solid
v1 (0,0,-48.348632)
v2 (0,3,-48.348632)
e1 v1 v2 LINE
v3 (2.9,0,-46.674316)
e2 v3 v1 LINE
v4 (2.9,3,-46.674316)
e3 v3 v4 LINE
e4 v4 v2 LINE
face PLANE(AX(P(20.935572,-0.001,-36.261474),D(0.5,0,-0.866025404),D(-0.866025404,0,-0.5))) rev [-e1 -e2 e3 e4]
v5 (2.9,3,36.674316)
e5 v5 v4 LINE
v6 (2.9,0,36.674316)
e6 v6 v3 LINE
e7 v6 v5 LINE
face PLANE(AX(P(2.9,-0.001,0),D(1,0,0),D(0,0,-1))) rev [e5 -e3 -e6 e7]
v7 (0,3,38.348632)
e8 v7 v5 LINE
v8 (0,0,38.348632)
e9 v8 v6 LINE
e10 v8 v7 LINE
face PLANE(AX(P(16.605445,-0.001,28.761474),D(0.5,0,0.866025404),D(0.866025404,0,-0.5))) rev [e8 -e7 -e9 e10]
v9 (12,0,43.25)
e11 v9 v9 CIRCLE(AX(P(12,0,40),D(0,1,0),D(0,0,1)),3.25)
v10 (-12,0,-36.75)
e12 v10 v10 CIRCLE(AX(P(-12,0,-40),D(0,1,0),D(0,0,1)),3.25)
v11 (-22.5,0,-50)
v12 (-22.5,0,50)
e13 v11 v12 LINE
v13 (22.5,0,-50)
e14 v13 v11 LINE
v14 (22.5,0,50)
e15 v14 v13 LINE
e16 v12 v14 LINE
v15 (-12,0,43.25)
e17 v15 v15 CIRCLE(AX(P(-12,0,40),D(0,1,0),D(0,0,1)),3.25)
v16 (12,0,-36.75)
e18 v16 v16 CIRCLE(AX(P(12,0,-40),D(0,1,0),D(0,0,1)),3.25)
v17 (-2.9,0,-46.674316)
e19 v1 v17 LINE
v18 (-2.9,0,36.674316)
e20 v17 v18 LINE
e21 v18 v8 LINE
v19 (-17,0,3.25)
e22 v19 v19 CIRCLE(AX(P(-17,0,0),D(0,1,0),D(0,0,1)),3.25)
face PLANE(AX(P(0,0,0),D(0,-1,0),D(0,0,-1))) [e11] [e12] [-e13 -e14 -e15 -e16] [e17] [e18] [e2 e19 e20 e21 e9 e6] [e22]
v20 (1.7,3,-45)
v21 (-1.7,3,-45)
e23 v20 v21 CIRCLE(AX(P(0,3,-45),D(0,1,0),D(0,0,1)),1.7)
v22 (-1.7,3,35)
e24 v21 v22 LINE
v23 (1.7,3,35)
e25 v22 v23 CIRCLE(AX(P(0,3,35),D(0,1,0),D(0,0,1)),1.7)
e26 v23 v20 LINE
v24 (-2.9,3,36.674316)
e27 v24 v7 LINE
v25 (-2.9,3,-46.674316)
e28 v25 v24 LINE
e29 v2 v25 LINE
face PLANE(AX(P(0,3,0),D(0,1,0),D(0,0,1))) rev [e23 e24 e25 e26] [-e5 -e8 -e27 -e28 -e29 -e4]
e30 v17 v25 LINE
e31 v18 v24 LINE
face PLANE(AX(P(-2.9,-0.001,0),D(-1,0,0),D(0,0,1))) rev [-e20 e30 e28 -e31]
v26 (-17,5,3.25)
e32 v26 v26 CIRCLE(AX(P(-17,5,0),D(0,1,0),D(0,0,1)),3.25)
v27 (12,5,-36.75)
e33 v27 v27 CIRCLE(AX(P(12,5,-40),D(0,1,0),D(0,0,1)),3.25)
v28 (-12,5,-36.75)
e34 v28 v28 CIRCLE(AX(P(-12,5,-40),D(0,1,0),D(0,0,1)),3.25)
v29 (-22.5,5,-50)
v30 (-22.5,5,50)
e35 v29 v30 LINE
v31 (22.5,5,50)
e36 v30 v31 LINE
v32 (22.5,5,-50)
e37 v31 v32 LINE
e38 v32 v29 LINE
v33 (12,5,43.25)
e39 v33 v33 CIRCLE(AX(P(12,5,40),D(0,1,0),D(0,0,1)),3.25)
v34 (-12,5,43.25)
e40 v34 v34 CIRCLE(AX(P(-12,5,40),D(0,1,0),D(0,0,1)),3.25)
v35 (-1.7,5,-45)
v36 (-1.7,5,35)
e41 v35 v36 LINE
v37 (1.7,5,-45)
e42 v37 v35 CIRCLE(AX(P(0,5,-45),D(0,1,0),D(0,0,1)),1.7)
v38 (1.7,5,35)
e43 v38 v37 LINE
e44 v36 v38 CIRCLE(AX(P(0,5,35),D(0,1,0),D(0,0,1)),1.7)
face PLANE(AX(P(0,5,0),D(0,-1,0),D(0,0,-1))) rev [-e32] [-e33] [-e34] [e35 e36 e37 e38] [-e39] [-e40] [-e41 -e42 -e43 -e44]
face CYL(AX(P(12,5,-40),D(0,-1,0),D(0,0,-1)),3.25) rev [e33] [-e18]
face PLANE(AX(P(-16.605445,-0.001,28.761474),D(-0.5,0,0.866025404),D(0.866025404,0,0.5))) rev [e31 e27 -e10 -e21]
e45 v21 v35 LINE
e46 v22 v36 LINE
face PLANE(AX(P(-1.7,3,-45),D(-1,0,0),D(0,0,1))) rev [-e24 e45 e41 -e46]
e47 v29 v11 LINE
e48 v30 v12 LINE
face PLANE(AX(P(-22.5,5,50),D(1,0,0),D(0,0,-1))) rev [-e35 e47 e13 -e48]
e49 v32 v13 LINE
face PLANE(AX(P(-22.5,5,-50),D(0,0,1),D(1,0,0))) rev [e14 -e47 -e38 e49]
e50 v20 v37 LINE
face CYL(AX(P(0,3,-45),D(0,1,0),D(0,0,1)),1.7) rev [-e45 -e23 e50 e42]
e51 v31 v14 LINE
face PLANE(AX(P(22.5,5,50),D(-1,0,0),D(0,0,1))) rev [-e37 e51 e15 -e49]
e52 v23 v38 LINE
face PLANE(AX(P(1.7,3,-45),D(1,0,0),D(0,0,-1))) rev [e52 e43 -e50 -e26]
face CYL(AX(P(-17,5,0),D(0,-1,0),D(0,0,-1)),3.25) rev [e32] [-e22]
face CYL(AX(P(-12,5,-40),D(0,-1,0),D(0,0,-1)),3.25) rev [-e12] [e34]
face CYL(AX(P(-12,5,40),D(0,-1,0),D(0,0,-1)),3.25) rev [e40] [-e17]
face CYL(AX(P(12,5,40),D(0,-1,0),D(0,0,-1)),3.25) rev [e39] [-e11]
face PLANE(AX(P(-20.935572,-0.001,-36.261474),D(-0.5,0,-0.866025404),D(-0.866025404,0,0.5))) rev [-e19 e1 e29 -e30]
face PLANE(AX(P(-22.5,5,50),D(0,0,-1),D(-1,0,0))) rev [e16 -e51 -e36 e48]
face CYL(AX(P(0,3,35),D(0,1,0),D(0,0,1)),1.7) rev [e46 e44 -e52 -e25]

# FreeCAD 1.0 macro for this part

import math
import FreeCAD as App
import Part
import Sketcher
Q = App.Units.Quantity

doc = App.newDocument("Part")
body = doc.addObject("PartDesign::Body", "Body")

# Sketch on XZ plane
sketch1 = body.newObject("Sketcher::SketchObject", "Sketch")
sketch1.AttachmentSupport = (doc.getObject("XZ_Plane"), [""])
sketch1.MapMode = "FlatFace"
sketch1.addGeometry([
    Part.LineSegment(App.Vector(-22.5, -50, 0), App.Vector(-22.5, 50, 0)),  # 0
    Part.LineSegment(App.Vector(-22.5, 50, 0), App.Vector(22.5, 50, 0)),  # 1
    Part.LineSegment(App.Vector(22.5, 50, 0), App.Vector(22.5, -50, 0)),  # 2
    Part.LineSegment(App.Vector(22.5, -50, 0), App.Vector(-22.5, -50, 0)),  # 3
    Part.Circle(App.Vector(-12, 40, 0), App.Vector(0, 0, 1), 3.2),  # 4
    Part.Circle(App.Vector(12, 40, 0), App.Vector(0, 0, 1), 3.2),  # 5
    Part.Circle(App.Vector(-17, 0, 0), App.Vector(0, 0, 1), 3.2),  # 6
    Part.Circle(App.Vector(-12, -40, 0), App.Vector(0, 0, 1), 3.2),  # 7
    Part.Circle(App.Vector(12, -40, 0), App.Vector(0, 0, 1), 3.2),  # 8
], False)
sketch1.addConstraint([
    Sketcher.Constraint("Coincident", 0, 2, 1, 1),
    Sketcher.Constraint("Coincident", 1, 2, 2, 1),
    Sketcher.Constraint("Coincident", 2, 2, 3, 1),
    Sketcher.Constraint("Coincident", 3, 2, 0, 1),
    Sketcher.Constraint("Vertical", 0),
    Sketcher.Constraint("Horizontal", 1),
    Sketcher.Constraint("Vertical", 2),
    Sketcher.Constraint("Horizontal", 3),
    Sketcher.Constraint("Equal", 4, 5),
    Sketcher.Constraint("Equal", 5, 6),
    Sketcher.Constraint("Equal", 6, 7),
    Sketcher.Constraint("Equal", 7, 8),
    Sketcher.Constraint("Symmetric", 5, 3, 7, 3, -1, 1),
    Sketcher.Constraint("Symmetric", 4, 3, 8, 3, -1, 1),
    Sketcher.Constraint("Symmetric", 0, 2, 2, 2, -1, 1),
    Sketcher.Constraint("Symmetric", 4, 3, 5, 3, -2),
    Sketcher.Constraint("PointOnObject", 6, 3, -1),
    Sketcher.Constraint("Diameter", 4, 6.5),
    Sketcher.Constraint("DistanceX", 1, 1, 1, 2, 45.0),
    Sketcher.Constraint("DistanceY", 0, 1, 0, 2, 100.0),
    Sketcher.Constraint("DistanceX", 4, 3, -1, 1, 12.0),
    Sketcher.Constraint("DistanceY", -1, 1, 4, 3, 40.0),
    Sketcher.Constraint("DistanceX", 6, 3, -1, 1, 17.0),
])
pad1 = body.newObject("PartDesign::Pad", "Pad")
pad1.Profile = sketch1
pad1.Length = 5
pad1.Reversed = True

# Sketch on XZ plane
sketch2 = body.newObject("Sketcher::SketchObject", "Sketch001")
sketch2.AttachmentSupport = (doc.getObject("XZ_Plane"), [""])
sketch2.MapMode = "FlatFace"
sketch2.AttachmentOffset = App.Placement(App.Vector(0, 0, -5), App.Rotation())
sketch2.addGeometry([
    Part.LineSegment(App.Vector(1.7, 35, 0), App.Vector(1.7, -45, 0)),
    Part.ArcOfCircle(Part.Circle(App.Vector(0, -45, 0), App.Vector(0, 0, 1), 1.7), math.radians(180), math.radians(360)),
    Part.LineSegment(App.Vector(-1.7, -45, 0), App.Vector(-1.7, 35, 0)),
    Part.ArcOfCircle(Part.Circle(App.Vector(0, 35, 0), App.Vector(0, 0, 1), 1.7), math.radians(0), math.radians(180)),
], False)
sketch2.addConstraint([
    Sketcher.Constraint("Tangent", 0, 2, 1, 2),
    Sketcher.Constraint("Tangent", 1, 1, 2, 1),
    Sketcher.Constraint("Tangent", 2, 2, 3, 2),
    Sketcher.Constraint("Tangent", 3, 1, 0, 1),
    Sketcher.Constraint("Vertical", 0),
    Sketcher.Constraint("Vertical", 2),
    Sketcher.Constraint("PointOnObject", 1, 3, -2),
    Sketcher.Constraint("Radius", 1, 1.7),
    Sketcher.Constraint("DistanceY", 0, 2, 0, 1, 80.0),
    Sketcher.Constraint("DistanceY", 1, 3, -1, 1, 45.0),
])
pocket1 = body.newObject("PartDesign::Pocket", "Pocket")
pocket1.Profile = sketch2
pocket1.Length = 2
pocket1.Reversed = True

# Sketch on XZ plane
sketch3 = body.newObject("Sketcher::SketchObject", "Sketch002")
sketch3.AttachmentSupport = (doc.getObject("XZ_Plane"), [""])
sketch3.MapMode = "FlatFace"
sketch3.AttachmentOffset = App.Placement(App.Vector(0, 0, -3), App.Rotation())
sketch3.addGeometry([
    Part.LineSegment(App.Vector(0, -41.7, 0), App.Vector(1.7, -42.6, 0)),  # 0
    Part.LineSegment(App.Vector(1.7, -42.6, 0), App.Vector(1.7, -45, 0)),  # 1
    Part.ArcOfCircle(Part.Circle(App.Vector(0, -45, 0), App.Vector(0, 0, 1), 1.7), math.radians(180), math.radians(360)),  # 2
    Part.LineSegment(App.Vector(-1.7, -45, 0), App.Vector(-1.7, -42.6, 0)),  # 3
    Part.LineSegment(App.Vector(-1.7, -42.6, 0), App.Vector(0, -41.7, 0)),  # 4
], False)
sketch3.addConstraint([
    Sketcher.Constraint("Coincident", 0, 2, 1, 1),
    Sketcher.Constraint("Tangent", 1, 2, 2, 2),
    Sketcher.Constraint("Tangent", 2, 1, 3, 1),
    Sketcher.Constraint("Coincident", 3, 2, 4, 1),
    Sketcher.Constraint("Coincident", 4, 2, 0, 1),
    Sketcher.Constraint("Vertical", 1),
    Sketcher.Constraint("Vertical", 3),
    Sketcher.Constraint("Symmetric", 0, 2, 3, 2, -2),
    Sketcher.Constraint("PointOnObject", 4, 2, -2),
    Sketcher.Constraint("Radius", 2, 1.7),
    Sketcher.Constraint("Angle", 0, Q("-30 deg")),
    Sketcher.Constraint("DistanceY", 2, 3, -1, 1, 45.0),
    Sketcher.Constraint("DistanceY", 1, 2, 1, 1, 2.367136),
])
pocket2 = body.newObject("PartDesign::Pocket", "Pocket001")
pocket2.Profile = sketch3
pocket2.Type = "UpToFirst"
pocket2.Reversed = True

# Sketch on XZ plane
sketch4 = body.newObject("Sketcher::SketchObject", "Sketch003")
sketch4.AttachmentSupport = (doc.getObject("XZ_Plane"), [""])
sketch4.MapMode = "FlatFace"
sketch4.AttachmentOffset = App.Placement(App.Vector(0, 0, -3), App.Rotation())
sketch4.addGeometry([
    Part.LineSegment(App.Vector(1.7, 32.6, 0), App.Vector(1.7, -42.6, 0)),  # 0
    Part.LineSegment(App.Vector(1.7, -42.6, 0), App.Vector(0, -41.7, 0)),  # 1
    Part.LineSegment(App.Vector(0, -41.7, 0), App.Vector(-1.7, -42.6, 0)),  # 2
    Part.LineSegment(App.Vector(-1.7, -42.6, 0), App.Vector(-1.7, 32.6, 0)),  # 3
    Part.LineSegment(App.Vector(-1.7, 32.6, 0), App.Vector(0, 31.7, 0)),  # 4
    Part.LineSegment(App.Vector(0, 31.7, 0), App.Vector(1.7, 32.6, 0)),  # 5
], False)
sketch4.addConstraint([
    Sketcher.Constraint("Coincident", 0, 2, 1, 1),
    Sketcher.Constraint("Coincident", 1, 2, 2, 1),
    Sketcher.Constraint("Coincident", 2, 2, 3, 1),
    Sketcher.Constraint("Coincident", 3, 2, 4, 1),
    Sketcher.Constraint("Coincident", 4, 2, 5, 1),
    Sketcher.Constraint("Coincident", 5, 2, 0, 1),
    Sketcher.Constraint("Vertical", 0),
    Sketcher.Constraint("Vertical", 3),
    Sketcher.Constraint("Symmetric", 0, 2, 2, 2, -2),
    Sketcher.Constraint("PointOnObject", 1, 2, -2),
    Sketcher.Constraint("PointOnObject", 4, 2, -2),
    Sketcher.Constraint("Parallel", 1, 4),
    Sketcher.Constraint("Parallel", 2, 5),
    Sketcher.Constraint("Angle", 1, Q("150 deg")),
    Sketcher.Constraint("DistanceX", -1, 1, 0, 2, 1.7),
    Sketcher.Constraint("DistanceY", 0, 2, 0, 1, 75.265728),
    Sketcher.Constraint("DistanceY", 1, 2, -1, 1, 41.651368),
])
pocket3 = body.newObject("PartDesign::Pocket", "Pocket002")
pocket3.Profile = sketch4
pocket3.Type = "UpToFirst"
pocket3.Reversed = True

# Sketch on XZ plane
sketch5 = body.newObject("Sketcher::SketchObject", "Sketch004")
sketch5.AttachmentSupport = (doc.getObject("XZ_Plane"), [""])
sketch5.MapMode = "FlatFace"
sketch5.AttachmentOffset = App.Placement(App.Vector(0, 0, -3), App.Rotation())
sketch5.addGeometry([
    Part.LineSegment(App.Vector(1.7, 35, 0), App.Vector(1.7, 32.6, 0)),  # 0
    Part.LineSegment(App.Vector(1.7, 32.6, 0), App.Vector(0, 31.7, 0)),  # 1
    Part.LineSegment(App.Vector(0, 31.7, 0), App.Vector(-1.7, 32.6, 0)),  # 2
    Part.LineSegment(App.Vector(-1.7, 32.6, 0), App.Vector(-1.7, 35, 0)),  # 3
    Part.ArcOfCircle(Part.Circle(App.Vector(0, 35, 0), App.Vector(0, 0, 1), 1.7), math.radians(0), math.radians(180)),  # 4
], False)
sketch5.addConstraint([
    Sketcher.Constraint("Coincident", 0, 2, 1, 1),
    Sketcher.Constraint("Coincident", 1, 2, 2, 1),
    Sketcher.Constraint("Coincident", 2, 2, 3, 1),
    Sketcher.Constraint("Tangent", 3, 2, 4, 2),
    Sketcher.Constraint("Tangent", 4, 1, 0, 1),
    Sketcher.Constraint("Vertical", 0),
    Sketcher.Constraint("Vertical", 3),
    Sketcher.Constraint("Symmetric", 0, 2, 2, 2, -2),
    Sketcher.Constraint("PointOnObject", 1, 2, -2),
    Sketcher.Constraint("Radius", 4, 1.7),
    Sketcher.Constraint("Angle", 1, Q("-150 deg")),
    Sketcher.Constraint("DistanceY", -1, 1, 4, 3, 35.0),
    Sketcher.Constraint("DistanceY", 0, 2, 0, 1, 2.367136),
])
pocket4 = body.newObject("PartDesign::Pocket", "Pocket003")
pocket4.Profile = sketch5
pocket4.Type = "UpToFirst"
pocket4.Reversed = True

# Sketch on XZ plane
sketch6 = body.newObject("Sketcher::SketchObject", "Sketch005")
sketch6.AttachmentSupport = (doc.getObject("XZ_Plane"), [""])
sketch6.MapMode = "FlatFace"
sketch6.AttachmentOffset = App.Placement(App.Vector(0, 0, -3), App.Rotation())
sketch6.addGeometry([
    Part.LineSegment(App.Vector(-1.7, 32.6, 0), App.Vector(-1.7, -42.6, 0)),
    Part.LineSegment(App.Vector(-1.7, -42.6, 0), App.Vector(-2.9, -43.3, 0)),
    Part.LineSegment(App.Vector(-2.9, -43.3, 0), App.Vector(-2.9, 33.3, 0)),
    Part.LineSegment(App.Vector(-2.9, 33.3, 0), App.Vector(-1.7, 32.6, 0)),
], False)
sketch6.addConstraint([
    Sketcher.Constraint("Coincident", 0, 2, 1, 1),
    Sketcher.Constraint("Coincident", 1, 2, 2, 1),
    Sketcher.Constraint("Coincident", 2, 2, 3, 1),
    Sketcher.Constraint("Coincident", 3, 2, 0, 1),
    Sketcher.Constraint("Vertical", 0),
    Sketcher.Constraint("Vertical", 2),
    Sketcher.Constraint("Equal", 1, 3),
    Sketcher.Constraint("Angle", 1, Q("-150 deg")),
    Sketcher.Constraint("DistanceX", 0, 2, -1, 1, 1.7),
    Sketcher.Constraint("DistanceX", 1, 2, -1, 1, 2.9),
    Sketcher.Constraint("DistanceY", 2, 1, 2, 2, 76.651368),
    Sketcher.Constraint("DistanceY", 0, 2, -1, 1, 42.632864),
])
pocket5 = body.newObject("PartDesign::Pocket", "Pocket004")
pocket5.Profile = sketch6
pocket5.Type = "UpToFirst"
pocket5.Reversed = True

# Sketch on XZ plane
sketch7 = body.newObject("Sketcher::SketchObject", "Sketch006")
sketch7.AttachmentSupport = (doc.getObject("XZ_Plane"), [""])
sketch7.MapMode = "FlatFace"
sketch7.AttachmentOffset = App.Placement(App.Vector(0, 0, -3), App.Rotation())
sketch7.addGeometry([
    Part.LineSegment(App.Vector(2.9, 33.3, 0), App.Vector(2.9, -43.3, 0)),
    Part.LineSegment(App.Vector(2.9, -43.3, 0), App.Vector(1.7, -42.6, 0)),
    Part.LineSegment(App.Vector(1.7, -42.6, 0), App.Vector(1.7, 32.6, 0)),
    Part.LineSegment(App.Vector(1.7, 32.6, 0), App.Vector(2.9, 33.3, 0)),
], False)
sketch7.addConstraint([
    Sketcher.Constraint("Coincident", 0, 2, 1, 1),
    Sketcher.Constraint("Coincident", 1, 2, 2, 1),
    Sketcher.Constraint("Coincident", 2, 2, 3, 1),
    Sketcher.Constraint("Coincident", 3, 2, 0, 1),
    Sketcher.Constraint("Vertical", 0),
    Sketcher.Constraint("Vertical", 2),
    Sketcher.Constraint("Equal", 1, 3),
    Sketcher.Constraint("Angle", 1, Q("150 deg")),
    Sketcher.Constraint("DistanceX", -1, 1, 0, 2, 2.9),
    Sketcher.Constraint("DistanceX", -1, 1, 1, 2, 1.7),
    Sketcher.Constraint("DistanceY", 0, 2, 0, 1, 76.651368),
    Sketcher.Constraint("DistanceY", 0, 2, -1, 1, 43.325684),
])
pocket6 = body.newObject("PartDesign::Pocket", "Pocket005")
pocket6.Profile = sketch7
pocket6.Type = "UpToFirst"
pocket6.Reversed = True

# Sketch on XZ plane
sketch8 = body.newObject("Sketcher::SketchObject", "Sketch007")
sketch8.AttachmentSupport = (doc.getObject("XZ_Plane"), [""])
sketch8.MapMode = "FlatFace"
sketch8.AttachmentOffset = App.Placement(App.Vector(0, 0, -3), App.Rotation())
sketch8.addGeometry([
    Part.LineSegment(App.Vector(1.7, -42.6, 0), App.Vector(2.9, -43.3, 0)),  # 0
    Part.LineSegment(App.Vector(2.9, -43.3, 0), App.Vector(2.9, -46.7, 0)),  # 1
    Part.LineSegment(App.Vector(2.9, -46.7, 0), App.Vector(0, -48.3, 0)),  # 2
    Part.LineSegment(App.Vector(0, -48.3, 0), App.Vector(-2.9, -46.7, 0)),  # 3
    Part.LineSegment(App.Vector(-2.9, -46.7, 0), App.Vector(-2.9, -43.3, 0)),  # 4
    Part.LineSegment(App.Vector(-2.9, -43.3, 0), App.Vector(-1.7, -42.6, 0)),  # 5
    Part.LineSegment(App.Vector(-1.7, -42.6, 0), App.Vector(-1.7, -45, 0)),  # 6
    Part.ArcOfCircle(Part.Circle(App.Vector(0, -45, 0), App.Vector(0, 0, 1), 1.7), math.radians(180), math.radians(360)),  # 7
    Part.LineSegment(App.Vector(1.7, -45, 0), App.Vector(1.7, -42.6, 0)),  # 8
], False)
sketch8.addConstraint([
    Sketcher.Constraint("Coincident", 0, 2, 1, 1),
    Sketcher.Constraint("Coincident", 1, 2, 2, 1),
    Sketcher.Constraint("Coincident", 2, 2, 3, 1),
    Sketcher.Constraint("Coincident", 3, 2, 4, 1),
    Sketcher.Constraint("Coincident", 4, 2, 5, 1),
    Sketcher.Constraint("Coincident", 5, 2, 6, 1),
    Sketcher.Constraint("Tangent", 6, 2, 7, 1),
    Sketcher.Constraint("Tangent", 7, 2, 8, 1),
    Sketcher.Constraint("Coincident", 8, 2, 0, 1),
    Sketcher.Constraint("Vertical", 1),
    Sketcher.Constraint("Vertical", 4),
    Sketcher.Constraint("Vertical", 6),
    Sketcher.Constraint("Vertical", 8),
    Sketcher.Constraint("Symmetric", 1, 2, 3, 2, -2),
    Sketcher.Constraint("Symmetric", 5, 2, 8, 2, -2),
    Sketcher.Constraint("PointOnObject", 2, 2, -2),
    Sketcher.Constraint("Parallel", 0, 3),
    Sketcher.Constraint("Parallel", 2, 5),
    Sketcher.Constraint("Radius", 7, 1.7),
    Sketcher.Constraint("Angle", 0, Q("-30 deg")),
    Sketcher.Constraint("DistanceY", 7, 3, -1, 1, 45.0),
    Sketcher.Constraint("DistanceX", -1, 1, 0, 2, 2.9),
    Sketcher.Constraint("DistanceY", 1, 2, 1, 1, 3.348632),
    Sketcher.Constraint("DistanceY", 6, 2, 6, 1, 2.367136),
])
pocket7 = body.newObject("PartDesign::Pocket", "Pocket006")
pocket7.Profile = sketch8
pocket7.Length = 3
pocket7.Reversed = True

# Sketch on XZ plane
sketch9 = body.newObject("Sketcher::SketchObject", "Sketch008")
sketch9.AttachmentSupport = (doc.getObject("XZ_Plane"), [""])
sketch9.MapMode = "FlatFace"
sketch9.AttachmentOffset = App.Placement(App.Vector(0, 0, -3), App.Rotation())
sketch9.addGeometry([
    Part.LineSegment(App.Vector(2.9, 36.7, 0), App.Vector(2.9, 33.3, 0)),  # 0
    Part.LineSegment(App.Vector(2.9, 33.3, 0), App.Vector(1.7, 32.6, 0)),  # 1
    Part.LineSegment(App.Vector(1.7, 32.6, 0), App.Vector(1.7, 35, 0)),  # 2
    Part.ArcOfCircle(Part.Circle(App.Vector(0, 35, 0), App.Vector(0, 0, 1), 1.7), math.radians(0), math.radians(180)),  # 3
    Part.LineSegment(App.Vector(-1.7, 35, 0), App.Vector(-1.7, 32.6, 0)),  # 4
    Part.LineSegment(App.Vector(-1.7, 32.6, 0), App.Vector(-2.9, 33.3, 0)),  # 5
    Part.LineSegment(App.Vector(-2.9, 33.3, 0), App.Vector(-2.9, 36.7, 0)),  # 6
    Part.LineSegment(App.Vector(-2.9, 36.7, 0), App.Vector(0, 38.3, 0)),  # 7
    Part.LineSegment(App.Vector(0, 38.3, 0), App.Vector(2.9, 36.7, 0)),  # 8
], False)
sketch9.addConstraint([
    Sketcher.Constraint("Coincident", 0, 2, 1, 1),
    Sketcher.Constraint("Coincident", 1, 2, 2, 1),
    Sketcher.Constraint("Tangent", 2, 2, 3, 1),
    Sketcher.Constraint("Tangent", 3, 2, 4, 1),
    Sketcher.Constraint("Coincident", 4, 2, 5, 1),
    Sketcher.Constraint("Coincident", 5, 2, 6, 1),
    Sketcher.Constraint("Coincident", 6, 2, 7, 1),
    Sketcher.Constraint("Coincident", 7, 2, 8, 1),
    Sketcher.Constraint("Coincident", 8, 2, 0, 1),
    Sketcher.Constraint("Vertical", 0),
    Sketcher.Constraint("Vertical", 2),
    Sketcher.Constraint("Vertical", 4),
    Sketcher.Constraint("Vertical", 6),
    Sketcher.Constraint("Symmetric", 1, 2, 4, 2, -2),
    Sketcher.Constraint("Symmetric", 0, 2, 5, 2, -2),
    Sketcher.Constraint("PointOnObject", 7, 2, -2),
    Sketcher.Constraint("Parallel", 1, 7),
    Sketcher.Constraint("Parallel", 5, 8),
    Sketcher.Constraint("Radius", 3, 1.7),
    Sketcher.Constraint("Angle", 1, Q("-150 deg")),
    Sketcher.Constraint("DistanceY", -1, 1, 3, 3, 35.0),
    Sketcher.Constraint("DistanceX", -1, 1, 0, 2, 2.9),
    Sketcher.Constraint("DistanceY", 0, 2, 0, 1, 3.348632),
    Sketcher.Constraint("DistanceY", 2, 1, 2, 2, 2.367136),
])
pocket8 = body.newObject("PartDesign::Pocket", "Pocket007")
pocket8.Profile = sketch9
pocket8.Length = 3
pocket8.Reversed = True

doc.recompute()
